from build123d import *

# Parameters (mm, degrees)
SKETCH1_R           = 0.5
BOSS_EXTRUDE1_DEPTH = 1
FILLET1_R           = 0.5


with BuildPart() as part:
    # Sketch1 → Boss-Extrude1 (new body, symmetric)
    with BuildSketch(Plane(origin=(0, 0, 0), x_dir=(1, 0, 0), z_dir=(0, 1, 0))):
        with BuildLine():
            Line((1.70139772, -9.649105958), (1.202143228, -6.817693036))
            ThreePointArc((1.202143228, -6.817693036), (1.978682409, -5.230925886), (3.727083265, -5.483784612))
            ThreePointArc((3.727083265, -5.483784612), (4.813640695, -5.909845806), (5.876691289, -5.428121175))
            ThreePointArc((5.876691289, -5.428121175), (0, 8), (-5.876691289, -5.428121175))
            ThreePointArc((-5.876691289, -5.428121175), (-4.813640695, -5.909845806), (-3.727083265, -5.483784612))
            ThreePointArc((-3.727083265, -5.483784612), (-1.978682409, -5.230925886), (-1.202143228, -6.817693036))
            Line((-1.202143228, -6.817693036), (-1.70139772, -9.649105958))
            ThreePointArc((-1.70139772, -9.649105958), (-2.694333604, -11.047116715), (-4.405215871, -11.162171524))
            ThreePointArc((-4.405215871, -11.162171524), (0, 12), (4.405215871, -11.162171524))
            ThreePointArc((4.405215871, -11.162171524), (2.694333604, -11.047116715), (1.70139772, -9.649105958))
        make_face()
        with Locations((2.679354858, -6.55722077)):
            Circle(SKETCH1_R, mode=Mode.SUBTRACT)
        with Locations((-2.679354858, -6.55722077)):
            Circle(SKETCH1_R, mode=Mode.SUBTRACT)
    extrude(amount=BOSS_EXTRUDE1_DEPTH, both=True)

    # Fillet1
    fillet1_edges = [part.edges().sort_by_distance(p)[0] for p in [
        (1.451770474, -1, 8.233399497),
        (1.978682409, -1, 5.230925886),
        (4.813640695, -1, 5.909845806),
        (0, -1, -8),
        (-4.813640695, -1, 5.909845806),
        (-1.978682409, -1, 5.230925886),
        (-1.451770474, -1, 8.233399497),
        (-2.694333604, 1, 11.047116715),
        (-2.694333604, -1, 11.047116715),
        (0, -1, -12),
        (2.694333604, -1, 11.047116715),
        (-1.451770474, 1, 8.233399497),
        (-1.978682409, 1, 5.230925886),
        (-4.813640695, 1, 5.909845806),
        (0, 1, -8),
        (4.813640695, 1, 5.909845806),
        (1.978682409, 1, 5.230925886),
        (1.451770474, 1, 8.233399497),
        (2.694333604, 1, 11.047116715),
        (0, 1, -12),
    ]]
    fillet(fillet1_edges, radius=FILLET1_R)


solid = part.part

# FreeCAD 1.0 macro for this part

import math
import FreeCAD as App
import Part
import Sketcher

V = App.Vector
Q = App.Units.Quantity


def edges_at(feature, points):
    """Names of the edges that pass closest to the given points."""
    edges = feature.Shape.Edges
    near = lambda p: min(range(len(edges)), key=lambda i: edges[i].distToShape(Part.Vertex(*p))[0])
    return sorted({f"Edge{near(p) + 1}" for p in points})

doc = App.newDocument("Part")
body = doc.addObject("PartDesign::Body", "Body")

# Sketch on XZ plane
sketch1 = body.newObject("Sketcher::SketchObject", "Sketch")
sketch1.AttachmentSupport = (doc.getObject("XZ_Plane"), [""])
sketch1.MapMode = "FlatFace"
sketch1.addGeometry([
    Part.LineSegment(V(1.2, 6.8, 0), V(1.7, 9.6, 0)),  # 0
    Part.ArcOfCircle(Part.Circle(V(3.7, 9.3, 0), V(0, 0, 1), 2), math.radians(68), math.radians(170)),  # 1
    Part.ArcOfCircle(Part.Circle(V(0, 0, 0), V(0, 0, 1), 12), math.radians(112), math.radians(428)),  # 2
    Part.ArcOfCircle(Part.Circle(V(-3.7, 9.3, 0), V(0, 0, 1), 2), math.radians(10), math.radians(112)),  # 3
    Part.LineSegment(V(-1.7, 9.6, 0), V(-1.2, 6.8, 0)),  # 4
    Part.ArcOfCircle(Part.Circle(V(-2.7, 6.6, 0), V(0, 0, 1), 1.5), math.radians(-134), math.radians(10)),  # 5
    Part.ArcOfCircle(Part.Circle(V(-4.8, 4.4, 0), V(0, 0, 1), 1.5), math.radians(46), math.radians(137)),  # 6
    Part.ArcOfCircle(Part.Circle(V(0, 0, 0), V(0, 0, 1), 8), math.radians(137), math.radians(403)),  # 7
    Part.ArcOfCircle(Part.Circle(V(4.8, 4.4, 0), V(0, 0, 1), 1.5), math.radians(43), math.radians(134)),  # 8
    Part.ArcOfCircle(Part.Circle(V(2.7, 6.6, 0), V(0, 0, 1), 1.5), math.radians(170), math.radians(314)),  # 9
    Part.Circle(V(2.7, 6.6, 0), V(0, 0, 1), 0.5),  # 10
    Part.Circle(V(-2.7, 6.6, 0), V(0, 0, 1), 0.5),  # 11
], False)
sketch1.addConstraint([
    Sketcher.Constraint("Tangent", 0, 2, 1, 2),
    Sketcher.Constraint("Tangent", 1, 1, 2, 2),
    Sketcher.Constraint("Tangent", 2, 1, 3, 2),
    Sketcher.Constraint("Tangent", 3, 1, 4, 1),
    Sketcher.Constraint("Tangent", 4, 2, 5, 2),
    Sketcher.Constraint("Tangent", 5, 1, 6, 1),
    Sketcher.Constraint("Tangent", 6, 2, 7, 1),
    Sketcher.Constraint("Tangent", 7, 2, 8, 1),
    Sketcher.Constraint("Tangent", 8, 2, 9, 2),
    Sketcher.Constraint("Tangent", 9, 1, 0, 1),
    Sketcher.Constraint("Coincident", 2, 3, -1, 1),
    Sketcher.Constraint("Coincident", 7, 3, -1, 1),
    Sketcher.Constraint("Coincident", 10, 3, 9, 3),
    Sketcher.Constraint("Coincident", 11, 3, 5, 3),
    Sketcher.Constraint("Equal", 1, 3),
    Sketcher.Constraint("Equal", 5, 6),
    Sketcher.Constraint("Equal", 6, 8),
    Sketcher.Constraint("Equal", 8, 9),
    Sketcher.Constraint("Equal", 10, 11),
    Sketcher.Constraint("Symmetric", 5, 3, 9, 3, -2),
    Sketcher.Constraint("Horizontal", 1, 3, 3, 3),
    Sketcher.Constraint("Diameter", 10, Q("1 mm")),
    Sketcher.Constraint("Radius", 1, Q("2 mm")),
    Sketcher.Constraint("Radius", 2, Q("12 mm")),
    Sketcher.Constraint("Radius", 7, Q("8 mm")),
    Sketcher.Constraint("Radius", 5, Q("1.5 mm")),
    Sketcher.Constraint("Angle", 0, Q("80 deg")),
    Sketcher.Constraint("DistanceX", 6, 3, 3, 3, Q("1.103798 mm")),
    Sketcher.Constraint("DistanceX", 4, 2, 9, 3, Q("3.881498 mm")),
])
pad1 = body.newObject("PartDesign::Pad", "Pad")
pad1.Profile = sketch1
pad1.Length = 2
pad1.Midplane = True
doc.recompute()

fillet = body.newObject("PartDesign::Fillet", "Fillet")
fillet.Base = (pad1, edges_at(pad1, [
    (1.452, -1, 8.233),
    (1.979, -1, 5.231),
    (4.814, -1, 5.91),
    (0, -1, -8),
    (-4.814, -1, 5.91),
    (-1.979, -1, 5.231),
    (-1.452, -1, 8.233),
    (-2.694, 1, 11.047),
    (-2.694, -1, 11.047),
    (0, -1, -12),
    (2.694, -1, 11.047),
    (-1.452, 1, 8.233),
    (-1.979, 1, 5.231),
    (-4.814, 1, 5.91),
    (0, 1, -8),
    (4.814, 1, 5.91),
    (1.979, 1, 5.231),
    (1.452, 1, 8.233),
    (2.694, 1, 11.047),
    (0, 1, -12),
]))
fillet.Radius = 0.5

doc.recompute()
